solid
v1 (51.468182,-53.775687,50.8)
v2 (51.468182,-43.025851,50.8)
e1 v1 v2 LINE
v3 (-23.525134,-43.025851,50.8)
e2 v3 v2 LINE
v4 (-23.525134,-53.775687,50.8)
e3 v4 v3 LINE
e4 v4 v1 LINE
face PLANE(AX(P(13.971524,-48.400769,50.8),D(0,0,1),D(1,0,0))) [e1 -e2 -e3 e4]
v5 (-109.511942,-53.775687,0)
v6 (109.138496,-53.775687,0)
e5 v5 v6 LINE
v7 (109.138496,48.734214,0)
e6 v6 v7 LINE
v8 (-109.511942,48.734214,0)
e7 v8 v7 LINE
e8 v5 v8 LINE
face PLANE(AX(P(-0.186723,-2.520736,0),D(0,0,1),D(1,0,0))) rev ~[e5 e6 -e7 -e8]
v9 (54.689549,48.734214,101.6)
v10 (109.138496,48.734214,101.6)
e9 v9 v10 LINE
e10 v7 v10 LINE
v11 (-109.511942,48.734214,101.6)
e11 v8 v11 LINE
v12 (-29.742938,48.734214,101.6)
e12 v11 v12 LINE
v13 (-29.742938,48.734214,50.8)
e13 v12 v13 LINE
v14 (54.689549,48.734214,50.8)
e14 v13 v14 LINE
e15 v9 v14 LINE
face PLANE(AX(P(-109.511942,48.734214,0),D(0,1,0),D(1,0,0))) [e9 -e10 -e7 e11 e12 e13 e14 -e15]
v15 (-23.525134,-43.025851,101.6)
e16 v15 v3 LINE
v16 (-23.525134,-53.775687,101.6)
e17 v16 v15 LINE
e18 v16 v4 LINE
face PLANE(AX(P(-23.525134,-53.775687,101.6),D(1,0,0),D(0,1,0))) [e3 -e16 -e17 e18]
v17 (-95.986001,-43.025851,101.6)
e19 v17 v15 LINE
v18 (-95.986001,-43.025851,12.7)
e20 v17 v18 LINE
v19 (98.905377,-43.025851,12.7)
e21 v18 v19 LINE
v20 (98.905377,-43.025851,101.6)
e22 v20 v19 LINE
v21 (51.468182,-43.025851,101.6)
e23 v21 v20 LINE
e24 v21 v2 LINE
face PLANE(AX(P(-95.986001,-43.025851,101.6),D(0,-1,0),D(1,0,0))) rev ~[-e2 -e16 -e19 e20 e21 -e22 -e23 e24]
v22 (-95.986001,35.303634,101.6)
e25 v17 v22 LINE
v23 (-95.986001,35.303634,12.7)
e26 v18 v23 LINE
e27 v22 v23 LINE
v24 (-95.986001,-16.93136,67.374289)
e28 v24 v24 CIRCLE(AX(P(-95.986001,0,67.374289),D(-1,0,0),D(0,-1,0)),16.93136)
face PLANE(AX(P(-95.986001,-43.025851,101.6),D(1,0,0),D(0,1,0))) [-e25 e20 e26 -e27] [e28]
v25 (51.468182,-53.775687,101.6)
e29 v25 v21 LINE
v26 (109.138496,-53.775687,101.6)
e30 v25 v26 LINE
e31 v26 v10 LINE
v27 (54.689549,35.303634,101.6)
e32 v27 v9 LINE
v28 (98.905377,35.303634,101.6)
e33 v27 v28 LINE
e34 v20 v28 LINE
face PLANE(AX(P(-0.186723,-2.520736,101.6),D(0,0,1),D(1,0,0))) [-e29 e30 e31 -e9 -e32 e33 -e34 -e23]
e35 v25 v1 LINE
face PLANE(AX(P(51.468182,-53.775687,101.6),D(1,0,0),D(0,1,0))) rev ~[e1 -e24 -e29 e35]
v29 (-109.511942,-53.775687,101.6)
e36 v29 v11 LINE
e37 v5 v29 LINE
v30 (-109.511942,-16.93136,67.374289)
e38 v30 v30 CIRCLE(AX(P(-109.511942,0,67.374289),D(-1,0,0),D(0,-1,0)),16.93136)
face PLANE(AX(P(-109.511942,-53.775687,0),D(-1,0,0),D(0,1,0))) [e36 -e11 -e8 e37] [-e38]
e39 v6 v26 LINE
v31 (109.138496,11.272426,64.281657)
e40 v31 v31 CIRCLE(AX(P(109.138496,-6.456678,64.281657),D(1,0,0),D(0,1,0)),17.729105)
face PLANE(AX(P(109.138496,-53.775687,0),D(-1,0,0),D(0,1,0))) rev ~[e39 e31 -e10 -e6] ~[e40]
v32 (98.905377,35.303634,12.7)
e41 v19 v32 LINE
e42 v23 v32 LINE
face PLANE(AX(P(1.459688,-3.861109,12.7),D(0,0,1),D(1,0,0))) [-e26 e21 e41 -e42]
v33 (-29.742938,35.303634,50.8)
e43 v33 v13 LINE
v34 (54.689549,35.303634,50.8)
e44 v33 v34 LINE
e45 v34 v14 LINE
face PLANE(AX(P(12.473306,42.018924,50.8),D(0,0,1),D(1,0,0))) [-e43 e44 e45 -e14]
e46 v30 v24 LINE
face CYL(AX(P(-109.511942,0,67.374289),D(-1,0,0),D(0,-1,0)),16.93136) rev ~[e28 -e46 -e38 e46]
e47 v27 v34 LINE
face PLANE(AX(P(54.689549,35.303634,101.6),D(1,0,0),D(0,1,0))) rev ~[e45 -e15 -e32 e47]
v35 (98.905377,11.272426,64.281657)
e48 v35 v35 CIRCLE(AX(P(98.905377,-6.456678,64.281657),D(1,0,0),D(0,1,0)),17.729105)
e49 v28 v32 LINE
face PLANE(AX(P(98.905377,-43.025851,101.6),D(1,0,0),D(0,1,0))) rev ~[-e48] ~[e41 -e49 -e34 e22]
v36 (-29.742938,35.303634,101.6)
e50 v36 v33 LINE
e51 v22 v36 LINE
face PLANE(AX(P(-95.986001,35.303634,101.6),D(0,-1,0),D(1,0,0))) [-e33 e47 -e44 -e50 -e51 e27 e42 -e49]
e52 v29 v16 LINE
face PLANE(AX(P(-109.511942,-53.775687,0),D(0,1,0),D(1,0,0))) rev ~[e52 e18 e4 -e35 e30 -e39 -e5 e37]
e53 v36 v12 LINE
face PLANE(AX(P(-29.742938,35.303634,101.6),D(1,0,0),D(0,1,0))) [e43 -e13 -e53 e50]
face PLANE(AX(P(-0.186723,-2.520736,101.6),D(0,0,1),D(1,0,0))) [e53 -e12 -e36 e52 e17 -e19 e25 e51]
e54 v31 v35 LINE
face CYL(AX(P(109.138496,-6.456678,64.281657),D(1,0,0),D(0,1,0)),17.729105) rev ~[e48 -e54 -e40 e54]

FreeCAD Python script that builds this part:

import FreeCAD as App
import Part
import Sketcher

V = App.Vector
Q = App.Units.Quantity


def add_polygon(sketch, points):
    """Adds a closed chain of lines whose ends are joined by coincident constraints."""
    first, n = sketch.GeometryCount, len(points)
    for a, b in zip(points, points[1:] + points[:1]):
        sketch.addGeometry(Part.LineSegment(App.Vector(*a, 0), App.Vector(*b, 0)), False)
    for i in range(n):
        sketch.addConstraint(Sketcher.Constraint("Coincident", first + i, 2, first + (i + 1) % n, 1))

doc = App.newDocument("Part")
body = doc.addObject("PartDesign::Body", "Body")

sketch1 = body.newObject("Sketcher::SketchObject", "Sketch")
sketch1.AttachmentSupport = (doc.getObject("XY_Plane"), [""])
sketch1.MapMode = "FlatFace"
add_polygon(sketch1, [(-110, 49), (-110, -54), (109, -54), (109, 49)])
sketch1.addConstraint([
    Sketcher.Constraint("Vertical", 0),
    Sketcher.Constraint("Horizontal", 1),
    Sketcher.Constraint("Vertical", 2),
    Sketcher.Constraint("Horizontal", 3),
    Sketcher.Constraint("DistanceY", 0, 2, 0, 1, 102.509901),
    Sketcher.Constraint("DistanceX", 1, 1, 1, 2, 218.650438),
    Sketcher.Constraint("DistanceX", 0, 2, -1, 1, 109.511942),
    Sketcher.Constraint("DistanceY", 0, 2, -1, 1, 53.775687),
])
pad1 = body.newObject("PartDesign::Pad", "Pad")
pad1.Profile = sketch1
pad1.Length = Q("4 in")

sketch2 = body.newObject("Sketcher::SketchObject", "Sketch001")
sketch2.AttachmentSupport = (doc.getObject("XY_Plane"), [""])
sketch2.MapMode = "FlatFace"
sketch2.AttachmentOffset = App.Placement(V(0, 0, 4 * 25.4), App.Rotation())
add_polygon(sketch2, [(-96, 35), (-96, -43), (99, -43), (99, 35)])
sketch2.addConstraint([
    Sketcher.Constraint("Vertical", 0),
    Sketcher.Constraint("Horizontal", 1),
    Sketcher.Constraint("Vertical", 2),
    Sketcher.Constraint("Horizontal", 3),
    Sketcher.Constraint("DistanceX", 1, 1, 1, 2, 194.891378),
    Sketcher.Constraint("DistanceX", 0, 2, -1, 1, 95.986001),
    Sketcher.Constraint("DistanceY", 0, 2, 0, 1, 78.329485),
    Sketcher.Constraint("DistanceY", 0, 2, -1, 1, 43.025851),
])
pocket1 = body.newObject("PartDesign::Pocket", "Pocket")
pocket1.Profile = sketch2
pocket1.Length = Q("3.5 in")

sketch3 = body.newObject("Sketcher::SketchObject", "Sketch002")
sketch3.AttachmentSupport = (doc.getObject("XY_Plane"), [""])
sketch3.MapMode = "FlatFace"
sketch3.AttachmentOffset = App.Placement(V(0, 0, 4 * 25.4), App.Rotation())
add_polygon(sketch3, [(-30, 49), (-30, 35), (55, 35), (55, 49)])
add_polygon(sketch3, [(-24, -43), (-24, -54), (51, -54), (51, -43)])
sketch3.addConstraint([
    Sketcher.Constraint("Vertical", 0),
    Sketcher.Constraint("Horizontal", 1),
    Sketcher.Constraint("Vertical", 2),
    Sketcher.Constraint("Horizontal", 3),
    Sketcher.Constraint("Vertical", 4),
    Sketcher.Constraint("Horizontal", 5),
    Sketcher.Constraint("Vertical", 6),
    Sketcher.Constraint("Horizontal", 7),
    Sketcher.Constraint("DistanceY", 0, 2, 0, 1, 13.43058),
    Sketcher.Constraint("DistanceY", 4, 2, 3, 2, 102.509901),
    Sketcher.Constraint("DistanceX", 1, 1, 1, 2, 84.432486),
    Sketcher.Constraint("DistanceX", 5, 1, 5, 2, 74.993316),
    Sketcher.Constraint("DistanceY", 4, 2, 4, 1, 10.749836),
    Sketcher.Constraint("DistanceX", -1, 1, 1, 2, 54.689549),
    Sketcher.Constraint("DistanceY", 6, 2, -1, 1, 43.025851),
    Sketcher.Constraint("DistanceX", 0, 2, 5, 2, 81.21112),
])
pocket2 = body.newObject("PartDesign::Pocket", "Pocket001")
pocket2.Profile = sketch3
pocket2.Length = Q("2 in")

sketch4 = body.newObject("Sketcher::SketchObject", "Sketch003")
sketch4.AttachmentSupport = (doc.getObject("YZ_Plane"), [""])
sketch4.MapMode = "FlatFace"
sketch4.AttachmentOffset = App.Placement(V(0, 0, -109.511942), App.Rotation())
sketch4.addGeometry(Part.Circle(V(0, 67, 0), V(0, 0, 1), 17), False)
sketch4.addConstraint([
    Sketcher.Constraint("PointOnObject", 0, 3, -2),
    Sketcher.Constraint("Diameter", 0, 33.86272),
    Sketcher.Constraint("DistanceY", -1, 1, 0, 3, 67.374289),
])
pocket3 = body.newObject("PartDesign::Pocket", "Pocket002")
pocket3.Profile = sketch4
pocket3.Length = Q("1 in")
pocket3.Reversed = True

sketch5 = body.newObject("Sketcher::SketchObject", "Sketch004")
sketch5.AttachmentSupport = (doc.getObject("YZ_Plane"), [""])
sketch5.MapMode = "FlatFace"
sketch5.AttachmentOffset = App.Placement(V(0, 0, 109.138496), App.Rotation())
sketch5.addGeometry(Part.Circle(V(-6, 64, 0), V(0, 0, 1), 18), False)
sketch5.addConstraint([
    Sketcher.Constraint("Diameter", 0, 35.45821),
    Sketcher.Constraint("DistanceX", 0, 3, -1, 1, Q("0.2541999 in")),
    Sketcher.Constraint("DistanceY", -1, 1, 0, 3, 64.281657),
])
pocket4 = body.newObject("PartDesign::Pocket", "Pocket003")
pocket4.Profile = sketch5
pocket4.Length = Q("1 in")

doc.recompute()
